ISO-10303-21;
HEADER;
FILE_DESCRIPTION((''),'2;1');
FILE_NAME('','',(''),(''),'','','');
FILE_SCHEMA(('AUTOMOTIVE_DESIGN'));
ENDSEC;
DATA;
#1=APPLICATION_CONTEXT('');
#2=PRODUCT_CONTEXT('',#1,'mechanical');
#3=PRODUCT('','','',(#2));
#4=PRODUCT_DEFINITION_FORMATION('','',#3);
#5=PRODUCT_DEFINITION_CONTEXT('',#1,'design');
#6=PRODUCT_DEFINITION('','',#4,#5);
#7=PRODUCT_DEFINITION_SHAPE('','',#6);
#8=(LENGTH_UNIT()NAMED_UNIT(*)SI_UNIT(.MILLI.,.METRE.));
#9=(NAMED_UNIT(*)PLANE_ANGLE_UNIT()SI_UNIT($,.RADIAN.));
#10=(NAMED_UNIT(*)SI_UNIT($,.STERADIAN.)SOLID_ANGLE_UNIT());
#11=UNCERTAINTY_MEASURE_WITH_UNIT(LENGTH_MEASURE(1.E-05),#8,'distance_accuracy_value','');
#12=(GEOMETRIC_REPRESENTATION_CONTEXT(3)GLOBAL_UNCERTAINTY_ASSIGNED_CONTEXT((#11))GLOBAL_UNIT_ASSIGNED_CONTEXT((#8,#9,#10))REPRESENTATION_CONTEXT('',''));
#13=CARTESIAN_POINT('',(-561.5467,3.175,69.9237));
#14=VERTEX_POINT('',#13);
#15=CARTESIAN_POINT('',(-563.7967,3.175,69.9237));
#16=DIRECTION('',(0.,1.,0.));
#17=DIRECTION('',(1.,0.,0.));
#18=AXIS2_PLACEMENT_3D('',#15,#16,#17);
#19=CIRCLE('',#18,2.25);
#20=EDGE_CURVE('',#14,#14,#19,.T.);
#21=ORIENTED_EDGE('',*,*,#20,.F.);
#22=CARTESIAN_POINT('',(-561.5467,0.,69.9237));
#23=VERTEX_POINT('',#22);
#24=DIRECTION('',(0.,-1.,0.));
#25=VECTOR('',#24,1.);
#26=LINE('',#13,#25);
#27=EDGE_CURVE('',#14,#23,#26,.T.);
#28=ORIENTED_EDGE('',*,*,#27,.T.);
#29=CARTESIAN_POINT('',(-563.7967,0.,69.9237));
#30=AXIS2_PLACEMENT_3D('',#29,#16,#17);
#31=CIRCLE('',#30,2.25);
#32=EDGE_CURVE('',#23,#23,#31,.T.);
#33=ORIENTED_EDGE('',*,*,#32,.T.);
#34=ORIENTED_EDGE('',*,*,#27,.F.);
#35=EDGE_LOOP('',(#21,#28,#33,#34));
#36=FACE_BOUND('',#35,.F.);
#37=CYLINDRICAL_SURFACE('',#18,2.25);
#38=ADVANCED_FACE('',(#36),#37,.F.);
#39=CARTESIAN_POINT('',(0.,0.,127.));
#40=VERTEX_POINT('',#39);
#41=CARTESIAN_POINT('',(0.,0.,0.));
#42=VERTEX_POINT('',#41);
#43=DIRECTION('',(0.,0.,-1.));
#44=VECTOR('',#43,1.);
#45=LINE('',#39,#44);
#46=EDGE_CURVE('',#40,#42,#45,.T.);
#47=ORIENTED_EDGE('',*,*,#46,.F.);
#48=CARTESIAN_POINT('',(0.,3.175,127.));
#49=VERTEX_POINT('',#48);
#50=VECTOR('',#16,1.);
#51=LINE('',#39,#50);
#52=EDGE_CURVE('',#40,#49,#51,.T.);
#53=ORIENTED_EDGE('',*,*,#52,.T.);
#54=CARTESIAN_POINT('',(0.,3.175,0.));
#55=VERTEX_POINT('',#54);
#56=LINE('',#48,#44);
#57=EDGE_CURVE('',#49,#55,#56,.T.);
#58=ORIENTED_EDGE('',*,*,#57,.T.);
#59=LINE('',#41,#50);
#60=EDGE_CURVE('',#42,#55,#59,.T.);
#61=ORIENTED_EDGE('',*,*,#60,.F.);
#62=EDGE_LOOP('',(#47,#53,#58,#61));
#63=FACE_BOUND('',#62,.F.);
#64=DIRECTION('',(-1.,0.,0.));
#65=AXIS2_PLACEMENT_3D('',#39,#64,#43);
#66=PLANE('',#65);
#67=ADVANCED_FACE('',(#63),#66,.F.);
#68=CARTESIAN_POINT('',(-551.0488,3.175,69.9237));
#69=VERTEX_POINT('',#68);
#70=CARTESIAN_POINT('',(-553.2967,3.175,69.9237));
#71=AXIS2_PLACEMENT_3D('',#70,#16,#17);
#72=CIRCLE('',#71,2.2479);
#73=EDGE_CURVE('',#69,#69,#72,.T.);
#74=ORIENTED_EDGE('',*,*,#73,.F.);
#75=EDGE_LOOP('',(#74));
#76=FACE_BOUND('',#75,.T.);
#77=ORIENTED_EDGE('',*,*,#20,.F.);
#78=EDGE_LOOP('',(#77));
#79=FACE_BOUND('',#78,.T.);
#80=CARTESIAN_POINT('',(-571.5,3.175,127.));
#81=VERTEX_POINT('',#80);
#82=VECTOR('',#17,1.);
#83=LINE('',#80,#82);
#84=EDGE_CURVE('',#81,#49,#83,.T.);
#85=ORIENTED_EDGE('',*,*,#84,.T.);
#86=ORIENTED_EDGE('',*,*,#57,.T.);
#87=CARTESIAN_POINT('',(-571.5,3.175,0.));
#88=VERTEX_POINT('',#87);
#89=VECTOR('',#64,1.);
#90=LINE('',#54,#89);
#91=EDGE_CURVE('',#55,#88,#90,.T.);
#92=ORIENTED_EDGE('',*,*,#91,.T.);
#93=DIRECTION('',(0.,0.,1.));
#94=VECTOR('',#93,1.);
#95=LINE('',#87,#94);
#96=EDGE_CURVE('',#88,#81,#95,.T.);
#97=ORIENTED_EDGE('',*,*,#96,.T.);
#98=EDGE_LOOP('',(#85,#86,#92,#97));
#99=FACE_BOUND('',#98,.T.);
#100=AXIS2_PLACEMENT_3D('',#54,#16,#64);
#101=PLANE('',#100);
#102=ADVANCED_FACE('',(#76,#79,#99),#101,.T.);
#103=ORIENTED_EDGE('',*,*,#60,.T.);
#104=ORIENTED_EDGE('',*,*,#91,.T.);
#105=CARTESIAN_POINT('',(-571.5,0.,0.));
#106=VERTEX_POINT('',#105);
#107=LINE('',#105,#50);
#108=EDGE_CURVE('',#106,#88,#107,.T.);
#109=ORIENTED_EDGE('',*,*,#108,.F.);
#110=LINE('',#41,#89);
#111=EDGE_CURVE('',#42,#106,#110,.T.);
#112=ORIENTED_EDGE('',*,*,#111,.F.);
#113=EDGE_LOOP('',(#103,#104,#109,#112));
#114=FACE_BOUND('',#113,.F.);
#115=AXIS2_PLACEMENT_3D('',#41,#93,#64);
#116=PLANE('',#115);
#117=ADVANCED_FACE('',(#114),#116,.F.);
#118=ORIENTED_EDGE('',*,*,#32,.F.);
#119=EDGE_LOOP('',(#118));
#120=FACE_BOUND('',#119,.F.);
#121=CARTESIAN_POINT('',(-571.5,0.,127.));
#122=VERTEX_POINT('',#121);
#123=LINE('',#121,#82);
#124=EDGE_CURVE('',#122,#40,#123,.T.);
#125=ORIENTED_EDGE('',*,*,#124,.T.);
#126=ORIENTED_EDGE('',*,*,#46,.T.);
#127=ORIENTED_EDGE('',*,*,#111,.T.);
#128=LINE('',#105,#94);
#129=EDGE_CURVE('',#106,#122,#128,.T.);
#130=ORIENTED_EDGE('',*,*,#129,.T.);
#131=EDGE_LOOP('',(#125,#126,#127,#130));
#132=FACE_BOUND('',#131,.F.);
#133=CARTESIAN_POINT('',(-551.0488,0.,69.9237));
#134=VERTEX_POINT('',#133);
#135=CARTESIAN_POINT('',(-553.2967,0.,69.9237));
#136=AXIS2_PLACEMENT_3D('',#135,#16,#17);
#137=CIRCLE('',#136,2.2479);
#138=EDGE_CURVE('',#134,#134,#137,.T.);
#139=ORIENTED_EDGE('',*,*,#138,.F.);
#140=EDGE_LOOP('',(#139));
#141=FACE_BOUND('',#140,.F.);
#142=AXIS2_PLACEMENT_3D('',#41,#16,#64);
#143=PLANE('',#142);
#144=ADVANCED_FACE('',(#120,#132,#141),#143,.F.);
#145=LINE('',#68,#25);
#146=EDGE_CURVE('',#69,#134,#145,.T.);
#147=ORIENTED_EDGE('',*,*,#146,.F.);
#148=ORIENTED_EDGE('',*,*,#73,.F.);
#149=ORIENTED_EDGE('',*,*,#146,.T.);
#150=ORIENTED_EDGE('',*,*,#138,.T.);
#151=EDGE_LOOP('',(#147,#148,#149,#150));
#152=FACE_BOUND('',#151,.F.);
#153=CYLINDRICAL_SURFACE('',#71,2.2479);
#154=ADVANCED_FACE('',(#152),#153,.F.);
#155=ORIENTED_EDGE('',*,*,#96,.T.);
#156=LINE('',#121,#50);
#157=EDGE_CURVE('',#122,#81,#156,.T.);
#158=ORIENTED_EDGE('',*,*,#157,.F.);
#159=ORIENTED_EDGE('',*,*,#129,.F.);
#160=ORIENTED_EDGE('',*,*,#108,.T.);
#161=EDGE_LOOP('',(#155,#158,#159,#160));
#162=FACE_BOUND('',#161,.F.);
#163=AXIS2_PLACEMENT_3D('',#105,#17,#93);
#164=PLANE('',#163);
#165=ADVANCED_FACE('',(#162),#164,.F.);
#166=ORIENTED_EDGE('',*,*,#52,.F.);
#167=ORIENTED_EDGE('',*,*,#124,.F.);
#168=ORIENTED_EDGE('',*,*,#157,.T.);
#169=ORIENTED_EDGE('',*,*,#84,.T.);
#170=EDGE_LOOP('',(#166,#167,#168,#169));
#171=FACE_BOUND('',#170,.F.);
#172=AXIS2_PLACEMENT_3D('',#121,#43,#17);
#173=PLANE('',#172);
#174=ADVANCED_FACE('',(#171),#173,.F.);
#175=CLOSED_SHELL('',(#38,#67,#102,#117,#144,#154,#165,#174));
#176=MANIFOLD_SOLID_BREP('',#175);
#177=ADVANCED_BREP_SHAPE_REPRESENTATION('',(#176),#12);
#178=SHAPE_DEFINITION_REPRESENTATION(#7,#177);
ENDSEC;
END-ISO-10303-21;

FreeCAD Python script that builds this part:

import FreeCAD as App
import Part
import Sketcher

V = App.Vector
Q = App.Units.Quantity


def add_polygon(sketch, points):
    """Adds a closed chain of lines whose ends are joined by coincident constraints."""
    first, n = sketch.GeometryCount, len(points)
    for a, b in zip(points, points[1:] + points[:1]):
        sketch.addGeometry(Part.LineSegment(App.Vector(*a, 0), App.Vector(*b, 0)), False)
    for i in range(n):
        sketch.addConstraint(Sketcher.Constraint("Coincident", first + i, 2, first + (i + 1) % n, 1))

doc = App.newDocument("Part")
body = doc.addObject("PartDesign::Body", "Body")

# Sketch on XZ plane
sketch1 = body.newObject("Sketcher::SketchObject", "Sketch")
sketch1.AttachmentSupport = (doc.getObject("XZ_Plane"), [""])
sketch1.MapMode = "FlatFace"
add_polygon(sketch1, [(0, 127), (0, 0), (-572, 0), (-572, 127)])  # lines 0-3
sketch1.addConstraint([
    Sketcher.Constraint("Vertical", 0),
    Sketcher.Constraint("Horizontal", 1),
    Sketcher.Constraint("Vertical", 2),
    Sketcher.Constraint("Horizontal", 3),
    Sketcher.Constraint("Coincident", 0, 2, -1, 1),
    Sketcher.Constraint("DistanceY", 0, 2, 0, 1, Q("5 in")),
    Sketcher.Constraint("DistanceX", 1, 2, 1, 1, Q("22.5 in")),
])
pad1 = body.newObject("PartDesign::Pad", "Pad")
pad1.Profile = sketch1
pad1.Length = Q("0.125 in")
pad1.Reversed = True

# Sketch on XZ plane
sketch2 = body.newObject("Sketcher::SketchObject", "Sketch001")
sketch2.AttachmentSupport = (doc.getObject("XZ_Plane"), [""])
sketch2.MapMode = "FlatFace"
sketch2.AttachmentOffset = App.Placement(V(0, 0, -0.125 * 25.4), App.Rotation())
sketch2.addGeometry([
    Part.Circle(V(-563.8, 69.9, 0), V(0, 0, 1), 2.2),
    Part.Circle(V(-553.3, 69.9, 0), V(0, 0, 1), 2.2),
], False)
sketch2.addConstraint([
    Sketcher.Constraint("Horizontal", 0, 3, 1, 3),
    Sketcher.Constraint("Diameter", 1, Q("0.177 in")),
    Sketcher.Constraint("Diameter", 0, Q("4.5 mm")),
    Sketcher.Constraint("DistanceX", 0, 3, 1, 3, Q("10.5 mm")),
    Sketcher.Constraint("DistanceY", -1, 1, 0, 3, Q("2.7529 in")),
    Sketcher.Constraint("DistanceX", 0, 3, -1, 1, Q("563.7967 mm")),
])
pocket1 = body.newObject("PartDesign::Pocket", "Pocket")
pocket1.Profile = sketch2
pocket1.Type = "ThroughAll"
pocket1.Reversed = True

doc.recompute()
